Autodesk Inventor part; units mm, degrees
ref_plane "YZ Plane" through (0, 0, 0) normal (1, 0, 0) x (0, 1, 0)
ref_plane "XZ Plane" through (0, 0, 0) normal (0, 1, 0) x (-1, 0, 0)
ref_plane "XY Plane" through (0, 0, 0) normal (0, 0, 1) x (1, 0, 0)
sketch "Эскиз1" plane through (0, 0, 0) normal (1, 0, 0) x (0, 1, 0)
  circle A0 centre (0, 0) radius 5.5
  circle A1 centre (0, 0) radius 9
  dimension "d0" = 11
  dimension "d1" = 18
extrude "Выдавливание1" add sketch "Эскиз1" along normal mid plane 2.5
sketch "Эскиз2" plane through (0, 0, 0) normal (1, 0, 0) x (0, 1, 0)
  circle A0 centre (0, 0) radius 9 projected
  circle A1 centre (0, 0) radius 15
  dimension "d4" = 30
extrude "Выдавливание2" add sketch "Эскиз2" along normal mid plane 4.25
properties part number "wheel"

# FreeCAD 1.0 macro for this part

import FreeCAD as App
import Part
import Sketcher

doc = App.newDocument("Part")
body = doc.addObject("PartDesign::Body", "Body")

sketch1 = doc.addObject("Sketcher::SketchObject", "Sketch")
body.addObject(sketch1)
sketch1.AttachmentSupport = (doc.YZ_Plane, [""])
sketch1.MapMode = "FlatFace"
sketch1.addGeometry([
    Part.Circle(App.Vector(0, 0, 0), App.Vector(0, 0, 1), 9),
    Part.Circle(App.Vector(0, 0, 0), App.Vector(0, 0, 1), 6),
], False)
sketch1.addConstraint([
    Sketcher.Constraint("Coincident", 0, 3, -1, 1),
    Sketcher.Constraint("Coincident", 1, 3, -1, 1),
    Sketcher.Constraint("Diameter", 0, 18.0),
    Sketcher.Constraint("Diameter", 1, 11.0),
])
pad1 = doc.addObject("PartDesign::Pad", "Pad")
body.addObject(pad1)
pad1.Profile = sketch1
pad1.Length = 2.5
pad1.Midplane = True

sketch2 = doc.addObject("Sketcher::SketchObject", "Sketch001")
body.addObject(sketch2)
sketch2.AttachmentSupport = (doc.YZ_Plane, [""])
sketch2.MapMode = "FlatFace"
sketch2.addGeometry([
    Part.Circle(App.Vector(0, 0, 0), App.Vector(0, 0, 1), 15),
    Part.Circle(App.Vector(0, 0, 0), App.Vector(0, 0, 1), 9),
], False)
sketch2.addConstraint([
    Sketcher.Constraint("Coincident", 0, 3, -1, 1),
    Sketcher.Constraint("Coincident", 1, 3, -1, 1),
    Sketcher.Constraint("Diameter", 0, 30.0),
    Sketcher.Constraint("Diameter", 1, 18.0),
])
pad2 = doc.addObject("PartDesign::Pad", "Pad001")
body.addObject(pad2)
pad2.Profile = sketch2
pad2.Length = 4.25
pad2.Midplane = True

doc.recompute()
